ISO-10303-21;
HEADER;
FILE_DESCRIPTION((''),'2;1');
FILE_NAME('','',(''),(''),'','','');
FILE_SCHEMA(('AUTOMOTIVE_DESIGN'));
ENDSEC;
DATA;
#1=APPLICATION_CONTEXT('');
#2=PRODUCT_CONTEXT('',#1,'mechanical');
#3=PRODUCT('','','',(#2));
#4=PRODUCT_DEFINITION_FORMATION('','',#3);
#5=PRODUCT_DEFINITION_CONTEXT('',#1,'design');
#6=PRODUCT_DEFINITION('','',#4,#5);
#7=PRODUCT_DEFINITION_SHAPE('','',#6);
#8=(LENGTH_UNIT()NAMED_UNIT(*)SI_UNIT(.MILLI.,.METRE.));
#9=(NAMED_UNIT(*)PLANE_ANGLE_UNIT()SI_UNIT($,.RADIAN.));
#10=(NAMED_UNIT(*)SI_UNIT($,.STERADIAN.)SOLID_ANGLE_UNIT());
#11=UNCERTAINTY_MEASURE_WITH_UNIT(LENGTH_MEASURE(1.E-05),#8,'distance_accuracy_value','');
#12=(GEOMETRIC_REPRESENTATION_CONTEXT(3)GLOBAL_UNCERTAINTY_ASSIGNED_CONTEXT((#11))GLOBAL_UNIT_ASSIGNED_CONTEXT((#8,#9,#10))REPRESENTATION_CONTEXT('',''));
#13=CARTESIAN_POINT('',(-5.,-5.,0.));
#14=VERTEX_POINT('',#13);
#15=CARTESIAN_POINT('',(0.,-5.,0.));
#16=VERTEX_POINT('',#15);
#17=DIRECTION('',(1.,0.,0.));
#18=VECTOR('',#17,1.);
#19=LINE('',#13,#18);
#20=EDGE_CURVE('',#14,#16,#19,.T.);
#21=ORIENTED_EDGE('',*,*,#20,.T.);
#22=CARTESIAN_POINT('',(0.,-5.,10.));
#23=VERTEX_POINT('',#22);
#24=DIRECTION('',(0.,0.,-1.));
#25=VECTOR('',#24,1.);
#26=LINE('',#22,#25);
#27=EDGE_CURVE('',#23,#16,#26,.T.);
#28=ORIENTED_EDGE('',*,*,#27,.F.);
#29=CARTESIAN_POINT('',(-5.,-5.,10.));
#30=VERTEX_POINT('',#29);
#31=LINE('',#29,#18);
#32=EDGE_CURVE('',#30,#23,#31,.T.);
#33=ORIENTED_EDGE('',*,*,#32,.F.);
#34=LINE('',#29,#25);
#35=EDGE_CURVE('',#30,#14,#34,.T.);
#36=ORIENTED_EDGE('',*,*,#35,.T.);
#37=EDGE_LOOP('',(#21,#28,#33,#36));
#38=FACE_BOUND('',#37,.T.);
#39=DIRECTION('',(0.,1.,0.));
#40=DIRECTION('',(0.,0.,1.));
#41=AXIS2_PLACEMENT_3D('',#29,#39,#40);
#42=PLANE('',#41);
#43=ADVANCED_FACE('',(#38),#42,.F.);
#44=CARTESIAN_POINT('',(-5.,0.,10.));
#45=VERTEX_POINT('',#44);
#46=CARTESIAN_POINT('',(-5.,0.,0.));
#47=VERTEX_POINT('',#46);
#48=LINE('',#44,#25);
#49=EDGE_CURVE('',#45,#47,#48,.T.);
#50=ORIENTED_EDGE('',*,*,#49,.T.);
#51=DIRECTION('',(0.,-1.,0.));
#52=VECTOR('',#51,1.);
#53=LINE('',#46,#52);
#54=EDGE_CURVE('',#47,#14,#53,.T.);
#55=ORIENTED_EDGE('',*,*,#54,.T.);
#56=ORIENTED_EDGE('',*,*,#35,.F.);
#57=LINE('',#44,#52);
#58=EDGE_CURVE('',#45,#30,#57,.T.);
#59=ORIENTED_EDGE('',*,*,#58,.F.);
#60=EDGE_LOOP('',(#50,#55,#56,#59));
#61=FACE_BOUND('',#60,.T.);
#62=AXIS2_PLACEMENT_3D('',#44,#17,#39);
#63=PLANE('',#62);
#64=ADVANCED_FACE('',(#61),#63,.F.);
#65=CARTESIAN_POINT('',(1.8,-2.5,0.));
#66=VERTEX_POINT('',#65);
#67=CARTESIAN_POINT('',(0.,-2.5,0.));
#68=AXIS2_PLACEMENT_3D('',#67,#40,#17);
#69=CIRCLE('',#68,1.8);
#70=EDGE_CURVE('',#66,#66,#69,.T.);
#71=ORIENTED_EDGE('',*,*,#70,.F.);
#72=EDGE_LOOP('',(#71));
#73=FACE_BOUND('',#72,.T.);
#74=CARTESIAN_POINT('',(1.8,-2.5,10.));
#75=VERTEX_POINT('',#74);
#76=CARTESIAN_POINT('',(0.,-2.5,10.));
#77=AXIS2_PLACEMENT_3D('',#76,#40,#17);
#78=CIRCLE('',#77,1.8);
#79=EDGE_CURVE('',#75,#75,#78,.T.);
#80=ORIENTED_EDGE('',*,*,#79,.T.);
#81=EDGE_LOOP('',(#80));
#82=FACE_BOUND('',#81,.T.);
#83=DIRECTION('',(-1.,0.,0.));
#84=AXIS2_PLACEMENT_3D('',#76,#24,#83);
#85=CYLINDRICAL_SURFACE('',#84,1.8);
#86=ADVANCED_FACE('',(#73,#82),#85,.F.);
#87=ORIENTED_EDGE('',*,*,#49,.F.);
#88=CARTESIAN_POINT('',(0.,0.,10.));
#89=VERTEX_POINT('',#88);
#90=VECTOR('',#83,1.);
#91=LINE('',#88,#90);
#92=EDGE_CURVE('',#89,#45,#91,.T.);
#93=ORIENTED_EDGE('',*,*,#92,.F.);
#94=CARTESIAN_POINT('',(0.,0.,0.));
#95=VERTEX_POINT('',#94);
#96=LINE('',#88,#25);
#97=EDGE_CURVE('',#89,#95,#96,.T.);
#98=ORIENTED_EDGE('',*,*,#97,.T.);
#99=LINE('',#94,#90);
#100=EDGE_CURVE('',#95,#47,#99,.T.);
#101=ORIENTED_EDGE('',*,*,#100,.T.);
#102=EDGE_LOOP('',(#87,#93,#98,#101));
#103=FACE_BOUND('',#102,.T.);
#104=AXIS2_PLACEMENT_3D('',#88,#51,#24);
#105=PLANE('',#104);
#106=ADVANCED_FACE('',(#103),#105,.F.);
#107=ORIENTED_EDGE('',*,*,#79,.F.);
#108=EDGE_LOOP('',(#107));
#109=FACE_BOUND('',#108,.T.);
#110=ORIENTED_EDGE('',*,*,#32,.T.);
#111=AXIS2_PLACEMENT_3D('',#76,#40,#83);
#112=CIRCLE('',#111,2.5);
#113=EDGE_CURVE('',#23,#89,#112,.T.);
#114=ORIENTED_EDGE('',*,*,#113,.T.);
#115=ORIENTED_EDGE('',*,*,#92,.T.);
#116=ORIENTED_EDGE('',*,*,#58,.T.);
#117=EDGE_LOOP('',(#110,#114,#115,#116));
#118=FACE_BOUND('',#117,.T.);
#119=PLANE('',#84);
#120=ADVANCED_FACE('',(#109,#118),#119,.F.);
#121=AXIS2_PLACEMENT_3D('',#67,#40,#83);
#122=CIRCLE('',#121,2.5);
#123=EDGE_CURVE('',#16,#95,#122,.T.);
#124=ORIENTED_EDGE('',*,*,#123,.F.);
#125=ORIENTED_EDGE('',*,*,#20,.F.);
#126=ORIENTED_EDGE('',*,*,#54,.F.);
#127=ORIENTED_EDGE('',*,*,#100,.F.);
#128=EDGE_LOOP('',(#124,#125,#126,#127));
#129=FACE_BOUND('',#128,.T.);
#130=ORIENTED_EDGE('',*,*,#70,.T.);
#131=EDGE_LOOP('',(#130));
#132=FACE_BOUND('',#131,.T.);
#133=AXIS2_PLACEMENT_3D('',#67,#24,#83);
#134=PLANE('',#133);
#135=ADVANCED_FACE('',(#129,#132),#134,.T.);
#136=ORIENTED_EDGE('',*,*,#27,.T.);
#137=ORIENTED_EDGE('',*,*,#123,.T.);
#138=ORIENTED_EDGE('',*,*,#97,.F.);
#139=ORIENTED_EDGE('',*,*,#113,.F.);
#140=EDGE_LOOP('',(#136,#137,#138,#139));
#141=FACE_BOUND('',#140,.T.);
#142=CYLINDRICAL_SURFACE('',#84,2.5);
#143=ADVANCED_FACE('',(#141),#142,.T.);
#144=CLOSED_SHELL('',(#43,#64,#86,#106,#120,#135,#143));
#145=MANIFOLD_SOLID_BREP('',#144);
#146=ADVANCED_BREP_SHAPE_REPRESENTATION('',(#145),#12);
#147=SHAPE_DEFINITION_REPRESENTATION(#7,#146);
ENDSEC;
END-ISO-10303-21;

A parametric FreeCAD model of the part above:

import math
import FreeCAD as App
import Part
import Sketcher
from FreeCAD import Vector
Q = App.Units.Quantity

doc = App.newDocument("Part")
body = doc.addObject("PartDesign::Body", "Body")

# Sketch on XY plane
sketch1 = body.newObject("Sketcher::SketchObject", "Sketch")
sketch1.AttachmentSupport = (doc.getObject("XY_Plane"), [""])
sketch1.MapMode = "FlatFace"
sketch1.addGeometry([
    Part.LineSegment(Vector(0, 0, 0), Vector(-5, 0, 0)),  # 0
    Part.LineSegment(Vector(-5, 0, 0), Vector(-5, -5, 0)),  # 1
    Part.LineSegment(Vector(-5, -5, 0), Vector(0, -5, 0)),  # 2
    Part.ArcOfCircle(Part.Circle(Vector(0, -2.5, 0), Vector(0, 0, 1), 2.5), math.radians(-90), math.radians(90)),  # 3
    Part.Circle(Vector(0, -2.5, 0), Vector(0, 0, 1), 1.8),  # 4
], False)
sketch1.addConstraint([
    Sketcher.Constraint("Coincident", 0, 2, 1, 1),
    Sketcher.Constraint("Coincident", 1, 2, 2, 1),
    Sketcher.Constraint("Tangent", 2, 2, 3, 1),
    Sketcher.Constraint("Tangent", 3, 2, 0, 1),
    Sketcher.Constraint("Horizontal", 0),
    Sketcher.Constraint("Vertical", 1),
    Sketcher.Constraint("Horizontal", 2),
    Sketcher.Constraint("Coincident", 3, 2, -1, 1),
    Sketcher.Constraint("Coincident", 4, 3, 3, 3),
    Sketcher.Constraint("Equal", 2, 1),
    Sketcher.Constraint("Diameter", 4, Q("3.6 mm")),
    Sketcher.Constraint("Radius", 3, Q("2.5 mm")),
])
pad1 = body.newObject("PartDesign::Pad", "Pad")
pad1.Profile = sketch1
pad1.Length = 10

doc.recompute()
